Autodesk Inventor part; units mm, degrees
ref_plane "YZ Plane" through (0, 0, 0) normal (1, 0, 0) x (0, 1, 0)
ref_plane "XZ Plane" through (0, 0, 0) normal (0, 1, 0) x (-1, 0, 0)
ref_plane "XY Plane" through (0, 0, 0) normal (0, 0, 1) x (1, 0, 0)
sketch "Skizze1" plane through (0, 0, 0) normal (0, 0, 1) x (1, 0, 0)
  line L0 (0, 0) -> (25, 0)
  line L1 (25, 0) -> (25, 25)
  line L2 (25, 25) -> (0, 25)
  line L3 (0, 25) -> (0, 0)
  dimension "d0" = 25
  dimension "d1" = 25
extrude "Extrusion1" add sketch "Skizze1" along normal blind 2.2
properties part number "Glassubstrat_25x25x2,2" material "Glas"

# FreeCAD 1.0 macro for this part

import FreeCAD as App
import Part
import Sketcher
from FreeCAD import Vector


def add_polygon(sketch, points):
    """Adds a closed chain of lines whose ends are joined by coincident constraints."""
    first, n = sketch.GeometryCount, len(points)
    for a, b in zip(points, points[1:] + points[:1]):
        sketch.addGeometry(Part.LineSegment(App.Vector(*a, 0), App.Vector(*b, 0)), False)
    for i in range(n):
        sketch.addConstraint(Sketcher.Constraint("Coincident", first + i, 2, first + (i + 1) % n, 1))

doc = App.newDocument("Part")
body = doc.addObject("PartDesign::Body", "Body")

# Sketch on XY plane
sketch1 = body.newObject("Sketcher::SketchObject", "Sketch")
sketch1.AttachmentSupport = (doc.getObject("XY_Plane"), [""])
sketch1.MapMode = "FlatFace"
add_polygon(sketch1, [(0, 25), (0, 0), (25, 0), (25, 25)])  # lines 0-3
sketch1.addConstraint(Sketcher.Constraint("Vertical", 0))
sketch1.addConstraint(Sketcher.Constraint("Horizontal", 1))
sketch1.addConstraint(Sketcher.Constraint("Vertical", 2))
sketch1.addConstraint(Sketcher.Constraint("Horizontal", 3))
sketch1.addConstraint(Sketcher.Constraint("Coincident", 0, 2, -1, 1))
sketch1.addConstraint(Sketcher.Constraint("Equal", 3, 0))
sketch1.addConstraint(Sketcher.Constraint("DistanceX", 1, 1, 1, 2, 25.0))
pad1 = body.newObject("PartDesign::Pad", "Pad")
pad1.Profile = sketch1
pad1.Length = 2.2

doc.recompute()
